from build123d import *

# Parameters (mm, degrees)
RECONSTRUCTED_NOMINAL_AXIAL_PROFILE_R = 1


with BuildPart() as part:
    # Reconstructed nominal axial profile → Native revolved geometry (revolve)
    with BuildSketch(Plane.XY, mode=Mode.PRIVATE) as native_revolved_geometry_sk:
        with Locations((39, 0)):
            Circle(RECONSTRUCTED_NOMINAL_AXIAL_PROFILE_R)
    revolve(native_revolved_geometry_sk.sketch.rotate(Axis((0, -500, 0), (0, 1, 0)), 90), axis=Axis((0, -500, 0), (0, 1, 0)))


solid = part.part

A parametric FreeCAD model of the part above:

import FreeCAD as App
import Part
import Sketcher
Q = App.Units.Quantity

doc = App.newDocument("Part")
params = doc.addObject("Spreadsheet::Sheet", "Params")
for row, (alias, value) in enumerate([
    ("sketch1_diameter", "2 mm"),
    ("revolution_angle", "360 deg"),
], start=1):
    params.set(f"A{row}", alias)
    params.set(f"B{row}", "=" + value)
    params.setAlias(f"B{row}", alias)

body = doc.addObject("PartDesign::Body", "Body")

sketch1 = doc.addObject("Sketcher::SketchObject", "Sketch")
body.addObject(sketch1)
sketch1.AttachmentSupport = (doc.XY_Plane, [""])
sketch1.MapMode = "FlatFace"
sketch1.addGeometry(Part.Circle(App.Vector(39, 0, 0), App.Vector(0, 0, 1), 1), False)
sketch1.addConstraint(Sketcher.Constraint("PointOnObject", 0, 3, -1))
sketch1.addConstraint(Sketcher.Constraint("Diameter", 0, Q("2 mm")))
sketch1.addConstraint(Sketcher.Constraint("DistanceX", -1, 1, 0, 3, Q("39 mm")))
sketch1.setExpression("Constraints[1]", "Params.sketch1_diameter")
revolution = doc.addObject("PartDesign::Revolution", "Revolution")
body.addObject(revolution)
revolution.Profile = sketch1
revolution.ReferenceAxis = (sketch1, ["V_Axis"])
revolution.setExpression("Angle", "Params.revolution_angle")

doc.recompute()
